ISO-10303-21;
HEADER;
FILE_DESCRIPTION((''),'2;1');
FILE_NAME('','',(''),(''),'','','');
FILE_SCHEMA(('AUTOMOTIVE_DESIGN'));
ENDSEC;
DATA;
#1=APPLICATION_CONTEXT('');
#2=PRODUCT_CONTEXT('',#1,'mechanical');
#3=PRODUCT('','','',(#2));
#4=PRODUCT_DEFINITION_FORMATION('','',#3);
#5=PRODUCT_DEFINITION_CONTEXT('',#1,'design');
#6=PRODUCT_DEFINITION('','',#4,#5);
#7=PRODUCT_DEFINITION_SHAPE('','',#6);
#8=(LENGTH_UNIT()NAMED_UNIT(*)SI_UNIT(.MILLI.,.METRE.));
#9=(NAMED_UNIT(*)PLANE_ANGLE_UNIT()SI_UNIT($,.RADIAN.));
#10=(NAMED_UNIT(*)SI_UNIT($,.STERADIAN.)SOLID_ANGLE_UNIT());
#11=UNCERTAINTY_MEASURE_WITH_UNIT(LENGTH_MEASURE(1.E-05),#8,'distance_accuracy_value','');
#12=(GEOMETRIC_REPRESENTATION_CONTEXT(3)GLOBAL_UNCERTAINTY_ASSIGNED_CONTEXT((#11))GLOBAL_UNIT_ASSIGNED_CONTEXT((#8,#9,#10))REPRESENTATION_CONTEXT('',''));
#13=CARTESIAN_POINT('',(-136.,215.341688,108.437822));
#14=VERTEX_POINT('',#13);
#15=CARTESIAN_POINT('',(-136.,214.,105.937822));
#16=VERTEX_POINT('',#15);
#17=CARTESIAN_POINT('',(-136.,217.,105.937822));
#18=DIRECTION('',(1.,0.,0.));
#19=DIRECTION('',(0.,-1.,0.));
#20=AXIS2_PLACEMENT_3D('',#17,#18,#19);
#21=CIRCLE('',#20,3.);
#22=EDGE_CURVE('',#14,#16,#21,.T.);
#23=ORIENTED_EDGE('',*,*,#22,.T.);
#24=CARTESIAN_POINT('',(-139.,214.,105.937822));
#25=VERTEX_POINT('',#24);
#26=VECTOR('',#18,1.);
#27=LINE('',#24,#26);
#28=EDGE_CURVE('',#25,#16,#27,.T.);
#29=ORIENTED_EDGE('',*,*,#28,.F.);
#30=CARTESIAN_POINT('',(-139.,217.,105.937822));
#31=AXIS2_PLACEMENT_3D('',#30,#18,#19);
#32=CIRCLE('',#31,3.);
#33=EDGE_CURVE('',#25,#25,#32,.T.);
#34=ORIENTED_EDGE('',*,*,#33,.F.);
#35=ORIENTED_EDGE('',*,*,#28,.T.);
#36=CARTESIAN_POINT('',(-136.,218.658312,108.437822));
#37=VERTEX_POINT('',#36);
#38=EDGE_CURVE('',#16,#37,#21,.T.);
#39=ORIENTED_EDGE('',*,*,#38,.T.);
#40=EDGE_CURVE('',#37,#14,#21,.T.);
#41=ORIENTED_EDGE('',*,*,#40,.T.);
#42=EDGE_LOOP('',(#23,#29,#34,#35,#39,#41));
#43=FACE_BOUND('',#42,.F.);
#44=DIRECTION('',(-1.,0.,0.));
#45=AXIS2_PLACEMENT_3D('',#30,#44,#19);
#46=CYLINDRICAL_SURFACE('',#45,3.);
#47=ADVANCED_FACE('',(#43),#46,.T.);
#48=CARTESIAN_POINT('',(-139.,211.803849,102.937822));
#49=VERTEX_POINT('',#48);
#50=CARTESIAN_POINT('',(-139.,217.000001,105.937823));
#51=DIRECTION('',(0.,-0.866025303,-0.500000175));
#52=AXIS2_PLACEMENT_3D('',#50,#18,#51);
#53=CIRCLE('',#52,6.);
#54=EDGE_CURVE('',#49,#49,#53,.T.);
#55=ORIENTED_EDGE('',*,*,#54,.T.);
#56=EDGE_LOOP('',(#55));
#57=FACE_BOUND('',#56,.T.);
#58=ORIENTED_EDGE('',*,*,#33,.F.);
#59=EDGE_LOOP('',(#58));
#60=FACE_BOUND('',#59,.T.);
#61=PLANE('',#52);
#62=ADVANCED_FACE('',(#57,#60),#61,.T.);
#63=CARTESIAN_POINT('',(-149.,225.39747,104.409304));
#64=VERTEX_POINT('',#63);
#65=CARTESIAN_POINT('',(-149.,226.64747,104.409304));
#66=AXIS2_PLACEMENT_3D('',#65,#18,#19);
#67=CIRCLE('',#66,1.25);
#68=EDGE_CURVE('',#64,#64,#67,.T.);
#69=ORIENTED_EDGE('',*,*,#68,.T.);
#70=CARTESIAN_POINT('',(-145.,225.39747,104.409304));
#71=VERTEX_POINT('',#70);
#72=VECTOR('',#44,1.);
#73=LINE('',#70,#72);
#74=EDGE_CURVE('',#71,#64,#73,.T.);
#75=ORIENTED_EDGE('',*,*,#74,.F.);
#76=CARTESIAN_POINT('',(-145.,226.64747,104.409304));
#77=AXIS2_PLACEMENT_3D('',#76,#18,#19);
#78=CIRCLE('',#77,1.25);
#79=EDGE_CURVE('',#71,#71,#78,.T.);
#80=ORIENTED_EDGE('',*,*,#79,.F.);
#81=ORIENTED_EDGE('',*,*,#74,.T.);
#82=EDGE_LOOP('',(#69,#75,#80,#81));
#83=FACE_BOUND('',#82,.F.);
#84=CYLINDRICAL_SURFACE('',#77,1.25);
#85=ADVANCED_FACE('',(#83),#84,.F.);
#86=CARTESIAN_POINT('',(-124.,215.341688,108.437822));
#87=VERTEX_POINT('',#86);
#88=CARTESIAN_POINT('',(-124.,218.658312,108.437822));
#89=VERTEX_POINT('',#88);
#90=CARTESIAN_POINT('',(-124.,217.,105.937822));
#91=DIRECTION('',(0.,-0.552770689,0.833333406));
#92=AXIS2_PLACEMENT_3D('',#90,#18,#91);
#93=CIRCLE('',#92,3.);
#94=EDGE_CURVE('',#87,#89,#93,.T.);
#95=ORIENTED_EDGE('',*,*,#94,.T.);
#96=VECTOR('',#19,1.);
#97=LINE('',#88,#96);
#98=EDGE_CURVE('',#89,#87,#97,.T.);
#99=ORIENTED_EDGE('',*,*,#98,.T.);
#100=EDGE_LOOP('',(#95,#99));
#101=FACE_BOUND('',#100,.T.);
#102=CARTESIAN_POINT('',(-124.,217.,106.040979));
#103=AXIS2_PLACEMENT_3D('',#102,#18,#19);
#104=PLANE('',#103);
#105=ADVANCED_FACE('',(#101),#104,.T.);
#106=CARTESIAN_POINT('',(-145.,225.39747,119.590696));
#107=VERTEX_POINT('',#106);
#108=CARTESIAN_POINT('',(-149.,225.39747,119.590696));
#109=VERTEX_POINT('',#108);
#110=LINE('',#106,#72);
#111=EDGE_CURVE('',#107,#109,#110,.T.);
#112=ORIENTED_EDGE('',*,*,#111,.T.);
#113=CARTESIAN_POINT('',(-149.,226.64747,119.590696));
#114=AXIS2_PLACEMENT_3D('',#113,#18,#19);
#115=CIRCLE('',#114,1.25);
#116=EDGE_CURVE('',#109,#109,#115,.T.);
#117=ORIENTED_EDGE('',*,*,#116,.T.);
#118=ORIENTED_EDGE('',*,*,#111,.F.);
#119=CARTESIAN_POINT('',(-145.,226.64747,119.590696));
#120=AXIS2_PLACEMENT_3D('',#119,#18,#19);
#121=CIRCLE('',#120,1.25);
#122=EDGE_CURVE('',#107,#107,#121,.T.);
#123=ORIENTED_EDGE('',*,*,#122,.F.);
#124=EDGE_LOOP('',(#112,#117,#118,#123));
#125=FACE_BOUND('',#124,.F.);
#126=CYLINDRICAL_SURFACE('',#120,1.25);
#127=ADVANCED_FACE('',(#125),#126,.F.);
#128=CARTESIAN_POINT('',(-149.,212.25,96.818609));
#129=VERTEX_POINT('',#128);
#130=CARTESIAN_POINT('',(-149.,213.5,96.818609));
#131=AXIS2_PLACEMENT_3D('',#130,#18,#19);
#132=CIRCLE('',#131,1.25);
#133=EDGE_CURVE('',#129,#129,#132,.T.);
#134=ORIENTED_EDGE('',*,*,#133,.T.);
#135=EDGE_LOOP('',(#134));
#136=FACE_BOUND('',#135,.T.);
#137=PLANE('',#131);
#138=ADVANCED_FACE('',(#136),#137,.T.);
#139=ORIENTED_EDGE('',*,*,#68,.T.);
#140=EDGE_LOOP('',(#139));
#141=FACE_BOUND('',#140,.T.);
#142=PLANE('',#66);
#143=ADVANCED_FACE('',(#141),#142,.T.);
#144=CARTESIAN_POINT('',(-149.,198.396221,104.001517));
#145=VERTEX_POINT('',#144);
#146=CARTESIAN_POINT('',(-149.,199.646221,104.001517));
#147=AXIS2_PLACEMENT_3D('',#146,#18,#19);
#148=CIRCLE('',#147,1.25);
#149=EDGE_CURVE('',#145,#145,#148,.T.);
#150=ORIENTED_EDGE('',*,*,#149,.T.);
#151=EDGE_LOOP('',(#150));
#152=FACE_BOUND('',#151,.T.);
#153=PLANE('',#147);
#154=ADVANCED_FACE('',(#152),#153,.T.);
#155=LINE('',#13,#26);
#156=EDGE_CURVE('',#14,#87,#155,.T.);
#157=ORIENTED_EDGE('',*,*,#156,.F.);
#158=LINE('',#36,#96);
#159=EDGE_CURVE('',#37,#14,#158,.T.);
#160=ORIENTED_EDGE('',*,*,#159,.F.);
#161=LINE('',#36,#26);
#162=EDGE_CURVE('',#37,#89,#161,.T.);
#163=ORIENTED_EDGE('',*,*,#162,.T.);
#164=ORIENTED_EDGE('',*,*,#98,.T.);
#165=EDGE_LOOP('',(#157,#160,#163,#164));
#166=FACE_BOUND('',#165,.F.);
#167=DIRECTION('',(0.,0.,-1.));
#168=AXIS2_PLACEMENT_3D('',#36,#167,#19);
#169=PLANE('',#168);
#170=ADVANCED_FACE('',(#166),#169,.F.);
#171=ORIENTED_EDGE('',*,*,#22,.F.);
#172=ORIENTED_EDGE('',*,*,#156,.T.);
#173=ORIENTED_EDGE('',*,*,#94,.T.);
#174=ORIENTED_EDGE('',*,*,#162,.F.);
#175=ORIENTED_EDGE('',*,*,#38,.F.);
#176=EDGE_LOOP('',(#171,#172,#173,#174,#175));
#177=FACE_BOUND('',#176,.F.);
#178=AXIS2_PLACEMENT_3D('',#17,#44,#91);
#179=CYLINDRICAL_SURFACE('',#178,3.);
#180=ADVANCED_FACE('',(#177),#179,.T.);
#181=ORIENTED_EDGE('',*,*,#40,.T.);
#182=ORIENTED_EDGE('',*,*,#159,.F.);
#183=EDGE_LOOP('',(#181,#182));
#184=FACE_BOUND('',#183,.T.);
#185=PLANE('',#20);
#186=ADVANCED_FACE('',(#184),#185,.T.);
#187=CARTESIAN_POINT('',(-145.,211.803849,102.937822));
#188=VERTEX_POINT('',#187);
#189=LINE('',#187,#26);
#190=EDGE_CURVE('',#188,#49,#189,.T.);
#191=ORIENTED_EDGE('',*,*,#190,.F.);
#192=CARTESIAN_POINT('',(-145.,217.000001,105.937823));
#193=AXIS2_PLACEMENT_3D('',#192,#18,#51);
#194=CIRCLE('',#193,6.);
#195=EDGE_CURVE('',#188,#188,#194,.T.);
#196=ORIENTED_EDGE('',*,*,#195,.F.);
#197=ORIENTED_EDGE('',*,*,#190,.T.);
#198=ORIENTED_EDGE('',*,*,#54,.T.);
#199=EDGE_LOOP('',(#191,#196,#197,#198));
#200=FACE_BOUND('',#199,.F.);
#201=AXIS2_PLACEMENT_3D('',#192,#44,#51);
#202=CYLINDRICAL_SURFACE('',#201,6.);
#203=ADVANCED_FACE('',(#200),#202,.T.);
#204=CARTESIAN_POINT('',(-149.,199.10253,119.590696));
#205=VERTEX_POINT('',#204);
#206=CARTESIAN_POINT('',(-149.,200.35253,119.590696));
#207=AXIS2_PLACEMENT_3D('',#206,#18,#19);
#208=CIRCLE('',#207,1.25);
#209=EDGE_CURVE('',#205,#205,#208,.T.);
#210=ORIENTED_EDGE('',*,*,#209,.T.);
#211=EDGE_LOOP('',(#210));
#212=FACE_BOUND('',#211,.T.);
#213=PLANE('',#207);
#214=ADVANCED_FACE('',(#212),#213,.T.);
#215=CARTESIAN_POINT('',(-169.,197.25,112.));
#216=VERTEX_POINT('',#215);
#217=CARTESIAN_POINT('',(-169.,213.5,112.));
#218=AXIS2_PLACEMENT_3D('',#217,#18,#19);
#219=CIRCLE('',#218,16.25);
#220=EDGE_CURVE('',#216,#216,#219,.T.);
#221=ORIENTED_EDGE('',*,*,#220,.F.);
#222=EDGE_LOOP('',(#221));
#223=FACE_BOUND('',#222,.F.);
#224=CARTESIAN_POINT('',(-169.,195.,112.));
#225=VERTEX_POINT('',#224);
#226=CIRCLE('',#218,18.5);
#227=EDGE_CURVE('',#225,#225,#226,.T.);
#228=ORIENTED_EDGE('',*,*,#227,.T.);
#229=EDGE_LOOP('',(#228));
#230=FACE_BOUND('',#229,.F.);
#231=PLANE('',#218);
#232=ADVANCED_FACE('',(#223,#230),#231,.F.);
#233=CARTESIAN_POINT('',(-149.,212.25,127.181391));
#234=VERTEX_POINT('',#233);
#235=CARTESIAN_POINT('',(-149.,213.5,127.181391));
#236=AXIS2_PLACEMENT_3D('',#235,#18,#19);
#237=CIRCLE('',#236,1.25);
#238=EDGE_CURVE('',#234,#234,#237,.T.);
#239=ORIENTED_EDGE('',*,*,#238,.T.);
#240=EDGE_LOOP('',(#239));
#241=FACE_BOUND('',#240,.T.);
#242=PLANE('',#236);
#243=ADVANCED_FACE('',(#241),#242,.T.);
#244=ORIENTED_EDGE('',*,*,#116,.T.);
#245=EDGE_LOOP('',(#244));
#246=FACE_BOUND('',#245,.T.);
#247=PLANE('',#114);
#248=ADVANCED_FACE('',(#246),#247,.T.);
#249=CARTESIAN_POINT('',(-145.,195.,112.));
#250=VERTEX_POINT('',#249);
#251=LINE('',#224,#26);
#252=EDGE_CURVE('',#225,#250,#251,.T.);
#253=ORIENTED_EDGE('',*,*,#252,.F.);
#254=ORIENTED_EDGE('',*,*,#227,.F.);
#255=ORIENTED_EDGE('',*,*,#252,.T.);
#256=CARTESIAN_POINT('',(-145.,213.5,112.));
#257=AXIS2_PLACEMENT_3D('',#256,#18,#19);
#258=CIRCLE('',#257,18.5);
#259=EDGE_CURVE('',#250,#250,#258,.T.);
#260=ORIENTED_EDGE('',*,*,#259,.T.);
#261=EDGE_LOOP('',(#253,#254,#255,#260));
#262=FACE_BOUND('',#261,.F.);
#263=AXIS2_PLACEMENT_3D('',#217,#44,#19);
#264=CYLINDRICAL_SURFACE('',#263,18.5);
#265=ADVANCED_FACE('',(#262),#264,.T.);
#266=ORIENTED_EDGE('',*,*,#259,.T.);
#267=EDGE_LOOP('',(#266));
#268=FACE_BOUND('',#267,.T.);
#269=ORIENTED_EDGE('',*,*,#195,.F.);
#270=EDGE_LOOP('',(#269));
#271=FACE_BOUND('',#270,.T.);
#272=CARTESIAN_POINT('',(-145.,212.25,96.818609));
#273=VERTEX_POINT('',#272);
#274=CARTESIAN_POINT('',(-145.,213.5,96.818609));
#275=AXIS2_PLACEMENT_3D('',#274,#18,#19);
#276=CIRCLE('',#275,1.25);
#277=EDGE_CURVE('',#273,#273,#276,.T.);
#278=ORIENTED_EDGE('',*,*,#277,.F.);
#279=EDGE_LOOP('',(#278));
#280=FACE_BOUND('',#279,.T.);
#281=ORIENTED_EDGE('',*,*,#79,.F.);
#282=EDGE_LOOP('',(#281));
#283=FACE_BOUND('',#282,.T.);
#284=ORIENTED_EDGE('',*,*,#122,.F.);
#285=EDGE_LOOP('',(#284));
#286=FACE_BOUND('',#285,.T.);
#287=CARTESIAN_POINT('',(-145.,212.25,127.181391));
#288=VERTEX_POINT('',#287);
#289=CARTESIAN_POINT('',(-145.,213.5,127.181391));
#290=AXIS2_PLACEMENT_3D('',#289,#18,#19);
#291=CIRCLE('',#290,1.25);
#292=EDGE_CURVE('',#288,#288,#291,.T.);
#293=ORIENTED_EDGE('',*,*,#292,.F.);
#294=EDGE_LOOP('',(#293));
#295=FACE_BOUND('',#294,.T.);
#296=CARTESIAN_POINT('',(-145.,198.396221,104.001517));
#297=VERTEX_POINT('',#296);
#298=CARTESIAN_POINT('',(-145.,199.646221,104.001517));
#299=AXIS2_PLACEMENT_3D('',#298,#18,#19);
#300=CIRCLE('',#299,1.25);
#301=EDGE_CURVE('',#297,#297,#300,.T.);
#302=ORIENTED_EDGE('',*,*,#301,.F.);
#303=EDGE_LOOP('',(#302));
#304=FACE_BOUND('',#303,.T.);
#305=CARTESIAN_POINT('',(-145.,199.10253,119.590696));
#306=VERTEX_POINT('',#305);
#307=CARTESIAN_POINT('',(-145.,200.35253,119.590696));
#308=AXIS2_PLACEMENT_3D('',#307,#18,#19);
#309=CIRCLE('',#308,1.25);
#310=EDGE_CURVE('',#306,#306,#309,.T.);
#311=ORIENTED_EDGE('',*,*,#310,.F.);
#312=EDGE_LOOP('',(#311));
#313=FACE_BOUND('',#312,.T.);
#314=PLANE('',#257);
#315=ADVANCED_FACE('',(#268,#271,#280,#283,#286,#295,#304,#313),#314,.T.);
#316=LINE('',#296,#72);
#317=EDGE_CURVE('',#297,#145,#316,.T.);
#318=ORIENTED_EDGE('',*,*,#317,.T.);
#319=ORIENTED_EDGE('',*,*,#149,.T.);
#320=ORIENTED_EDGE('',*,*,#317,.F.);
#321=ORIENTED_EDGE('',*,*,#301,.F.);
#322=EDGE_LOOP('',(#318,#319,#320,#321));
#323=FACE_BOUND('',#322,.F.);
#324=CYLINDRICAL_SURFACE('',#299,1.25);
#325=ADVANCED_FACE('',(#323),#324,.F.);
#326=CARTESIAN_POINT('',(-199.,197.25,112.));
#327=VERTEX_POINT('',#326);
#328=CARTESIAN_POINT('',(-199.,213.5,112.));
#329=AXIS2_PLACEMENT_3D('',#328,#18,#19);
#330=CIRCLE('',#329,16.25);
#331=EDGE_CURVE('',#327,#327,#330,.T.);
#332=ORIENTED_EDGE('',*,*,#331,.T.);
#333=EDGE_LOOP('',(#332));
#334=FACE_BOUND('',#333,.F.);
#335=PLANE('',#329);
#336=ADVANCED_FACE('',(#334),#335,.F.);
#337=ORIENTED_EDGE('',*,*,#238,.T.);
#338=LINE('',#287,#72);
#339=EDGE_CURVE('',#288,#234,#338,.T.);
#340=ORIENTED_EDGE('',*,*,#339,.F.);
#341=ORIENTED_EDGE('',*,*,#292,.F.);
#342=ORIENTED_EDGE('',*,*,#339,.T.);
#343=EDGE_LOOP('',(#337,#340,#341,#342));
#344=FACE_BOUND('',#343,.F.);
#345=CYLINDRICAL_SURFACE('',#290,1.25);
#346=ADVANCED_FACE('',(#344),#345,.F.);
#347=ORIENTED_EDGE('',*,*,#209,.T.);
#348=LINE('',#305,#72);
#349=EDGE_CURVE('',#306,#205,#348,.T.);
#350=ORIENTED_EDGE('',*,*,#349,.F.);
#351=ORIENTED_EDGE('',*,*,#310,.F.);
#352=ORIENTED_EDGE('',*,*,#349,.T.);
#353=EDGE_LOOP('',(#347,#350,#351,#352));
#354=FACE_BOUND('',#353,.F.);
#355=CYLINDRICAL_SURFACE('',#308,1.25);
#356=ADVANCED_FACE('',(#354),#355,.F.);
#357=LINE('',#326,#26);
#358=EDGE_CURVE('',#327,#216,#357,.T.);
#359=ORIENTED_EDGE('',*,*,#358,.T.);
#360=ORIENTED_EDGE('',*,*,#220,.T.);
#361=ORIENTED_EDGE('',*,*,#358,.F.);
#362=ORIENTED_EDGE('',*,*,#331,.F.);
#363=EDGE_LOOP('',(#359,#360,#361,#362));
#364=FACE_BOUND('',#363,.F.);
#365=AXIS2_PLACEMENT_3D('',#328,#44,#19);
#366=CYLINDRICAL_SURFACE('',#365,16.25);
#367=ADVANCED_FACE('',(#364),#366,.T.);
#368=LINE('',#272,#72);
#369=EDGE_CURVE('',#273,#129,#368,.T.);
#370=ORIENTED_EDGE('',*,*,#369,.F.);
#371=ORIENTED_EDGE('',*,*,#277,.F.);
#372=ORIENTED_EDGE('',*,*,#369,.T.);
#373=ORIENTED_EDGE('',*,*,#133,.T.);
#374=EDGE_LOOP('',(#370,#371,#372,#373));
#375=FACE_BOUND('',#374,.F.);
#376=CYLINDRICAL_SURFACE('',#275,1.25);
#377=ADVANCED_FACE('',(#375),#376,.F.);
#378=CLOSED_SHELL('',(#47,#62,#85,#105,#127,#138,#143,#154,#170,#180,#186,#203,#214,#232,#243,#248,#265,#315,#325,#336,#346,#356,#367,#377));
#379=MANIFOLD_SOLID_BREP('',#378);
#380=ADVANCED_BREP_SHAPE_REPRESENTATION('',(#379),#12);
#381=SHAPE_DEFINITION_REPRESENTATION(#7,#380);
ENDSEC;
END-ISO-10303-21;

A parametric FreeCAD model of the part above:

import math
import FreeCAD as App
import Part
import Sketcher

V = App.Vector
Q = App.Units.Quantity

doc = App.newDocument("Part")
body = doc.addObject("PartDesign::Body", "Body")

# Sketch on XY plane
sketch1 = body.newObject("Sketcher::SketchObject", "Sketch")
sketch1.AttachmentSupport = (doc.getObject("XY_Plane"), [""])
sketch1.MapMode = "FlatFace"
sketch1.addGeometry(Part.Circle(V(0, 0, 0), V(0, 0, 1), 16), False)
sketch1.addConstraint([
    Sketcher.Constraint("Coincident", 0, 3, -1, 1),
    Sketcher.Constraint("Diameter", 0, Q("32.5 mm")),
])
pad1 = body.newObject("PartDesign::Pad", "Pad")
pad1.Profile = sketch1
pad1.Length = 30

# Sketch on XY plane
sketch2 = body.newObject("Sketcher::SketchObject", "Sketch001")
sketch2.AttachmentSupport = (doc.getObject("XY_Plane"), [""])
sketch2.MapMode = "FlatFace"
sketch2.AttachmentOffset = App.Placement(V(0, 0, 30), App.Rotation())
sketch2.addGeometry(Part.Circle(V(0, 0, 0), V(0, 0, 1), 18), False)
sketch2.addConstraint([
    Sketcher.Constraint("Coincident", 0, 3, -1, 1),
    Sketcher.Constraint("Diameter", 0, Q("37 mm")),
])
pad2 = body.newObject("PartDesign::Pad", "Pad001")
pad2.Profile = sketch2
pad2.Length = 24

# Sketch on XY plane
sketch3 = body.newObject("Sketcher::SketchObject", "Sketch002")
sketch3.AttachmentSupport = (doc.getObject("XY_Plane"), [""])
sketch3.MapMode = "FlatFace"
sketch3.AttachmentOffset = App.Placement(V(0, 0, 54), App.Rotation())
sketch3.addGeometry([
    Part.Circle(V(-13.1, 7.6, 0), V(0, 0, 1), 1.2),  # 0
    Part.Circle(V(-13.1, -7.6, 0), V(0, 0, 1), 1.2),  # 1
    Part.Circle(V(13.1, -7.6, 0), V(0, 0, 1), 1.2),  # 2
    Part.Circle(V(0, 15.2, 0), V(0, 0, 1), 1.2),  # 3
    Part.Circle(V(13.9, 8, 0), V(0, 0, 1), 1.2),  # 4
    Part.Circle(V(0, -15.2, 0), V(0, 0, 1), 1.2),  # 5
], False)
sketch3.addConstraint([
    Sketcher.Constraint("Equal", 0, 1),
    Sketcher.Constraint("Equal", 1, 2),
    Sketcher.Constraint("Equal", 2, 3),
    Sketcher.Constraint("Equal", 3, 4),
    Sketcher.Constraint("Equal", 4, 5),
    Sketcher.Constraint("Symmetric", 0, 3, 2, 3, -1, 1),
    Sketcher.Constraint("Symmetric", 3, 3, 5, 3, -1, 1),
    Sketcher.Constraint("Symmetric", 1, 3, 2, 3, -2),
    Sketcher.Constraint("PointOnObject", 3, 3, -2),
    Sketcher.Constraint("Diameter", 0, Q("2.5 mm")),
    Sketcher.Constraint("DistanceX", 0, 3, -1, 1, Q("13.14747 mm")),
    Sketcher.Constraint("DistanceY", -1, 1, 3, 3, Q("15.181391 mm")),
    Sketcher.Constraint("DistanceX", -1, 1, 4, 3, Q("13.853779 mm")),
    Sketcher.Constraint("DistanceY", 2, 3, 4, 3, Q("15.589179 mm")),
    Sketcher.Constraint("DistanceY", -1, 1, 0, 3, Q("7.590696 mm")),
])
pocket1 = body.newObject("PartDesign::Pocket", "Pocket")
pocket1.Profile = sketch3
pocket1.Length = 4

# Sketch on XY plane
sketch4 = body.newObject("Sketcher::SketchObject", "Sketch003")
sketch4.AttachmentSupport = (doc.getObject("XY_Plane"), [""])
sketch4.MapMode = "FlatFace"
sketch4.AttachmentOffset = App.Placement(V(0, 0, 54), App.Rotation())
sketch4.addGeometry(Part.Circle(V(-4, 6, 0), V(0, 0, 1), 6), False)
sketch4.addConstraint([
    Sketcher.Constraint("Diameter", 0, Q("12 mm")),
    Sketcher.Constraint("DistanceX", 0, 3, -1, 1, Q("3.500001 mm")),
    Sketcher.Constraint("DistanceY", -1, 1, 0, 3, Q("6.062177 mm")),
])
pad3 = body.newObject("PartDesign::Pad", "Pad002")
pad3.Profile = sketch4
pad3.Length = 6

# Sketch on XY plane
sketch5 = body.newObject("Sketcher::SketchObject", "Sketch004")
sketch5.AttachmentSupport = (doc.getObject("XY_Plane"), [""])
sketch5.MapMode = "FlatFace"
sketch5.AttachmentOffset = App.Placement(V(0, 0, 60), App.Rotation())
sketch5.addGeometry(Part.Circle(V(-3.5, 6.1, 0), V(0, 0, 1), 3), False)
sketch5.addConstraint([
    Sketcher.Constraint("Diameter", 0, Q("6 mm")),
    Sketcher.Constraint("DistanceX", 0, 3, -1, 1, Q("3.5 mm")),
    Sketcher.Constraint("DistanceY", -1, 1, 0, 3, Q("6.062178 mm")),
])
pad4 = body.newObject("PartDesign::Pad", "Pad003")
pad4.Profile = sketch5
pad4.Length = 3

# Sketch on XY plane
sketch6 = body.newObject("Sketcher::SketchObject", "Sketch005")
sketch6.AttachmentSupport = (doc.getObject("XY_Plane"), [""])
sketch6.MapMode = "FlatFace"
sketch6.AttachmentOffset = App.Placement(V(0, 0, 63), App.Rotation())
sketch6.addGeometry([
    Part.LineSegment(V(-5.2, 3.6, 0), V(-1.8, 3.6, 0)),
    Part.ArcOfCircle(Part.Circle(V(-3.5, 6.1, 0), V(0, 0, 1), 3), math.radians(-56), math.radians(236)),
], False)
sketch6.addConstraint([
    Sketcher.Constraint("Coincident", 0, 1, 1, 2),
    Sketcher.Constraint("Coincident", 1, 1, 0, 2),
    Sketcher.Constraint("Horizontal", 0),
    Sketcher.Constraint("Radius", 1, Q("3 mm")),
    Sketcher.Constraint("DistanceX", 1, 3, -1, 1, Q("3.5 mm")),
    Sketcher.Constraint("DistanceY", 0, 1, 1, 3, Q("2.5 mm")),
    Sketcher.Constraint("DistanceY", -1, 1, 1, 3, Q("6.062178 mm")),
])
pad5 = body.newObject("PartDesign::Pad", "Pad004")
pad5.Profile = sketch6
pad5.Length = 12
body2 = doc.addObject("PartDesign::Body", "Body001")
doc.recompute()

body.Placement = App.Placement(V(0, 0, 0), App.Rotation(V(1, 0, 0), 270))
boolean = body2.newObject("PartDesign::Boolean", "Boolean")
boolean.Type = "Fuse"
boolean.addObjects([body])
body3 = doc.addObject("PartDesign::Body", "Body002")
doc.recompute()

body2.Placement = App.Placement(V(-199, 213.5, 112), App.Rotation(V(0, 0, 1), 270))
boolean2 = body3.newObject("PartDesign::Boolean", "Boolean001")
boolean2.Type = "Fuse"
boolean2.addObjects([body2])

doc.recompute()
